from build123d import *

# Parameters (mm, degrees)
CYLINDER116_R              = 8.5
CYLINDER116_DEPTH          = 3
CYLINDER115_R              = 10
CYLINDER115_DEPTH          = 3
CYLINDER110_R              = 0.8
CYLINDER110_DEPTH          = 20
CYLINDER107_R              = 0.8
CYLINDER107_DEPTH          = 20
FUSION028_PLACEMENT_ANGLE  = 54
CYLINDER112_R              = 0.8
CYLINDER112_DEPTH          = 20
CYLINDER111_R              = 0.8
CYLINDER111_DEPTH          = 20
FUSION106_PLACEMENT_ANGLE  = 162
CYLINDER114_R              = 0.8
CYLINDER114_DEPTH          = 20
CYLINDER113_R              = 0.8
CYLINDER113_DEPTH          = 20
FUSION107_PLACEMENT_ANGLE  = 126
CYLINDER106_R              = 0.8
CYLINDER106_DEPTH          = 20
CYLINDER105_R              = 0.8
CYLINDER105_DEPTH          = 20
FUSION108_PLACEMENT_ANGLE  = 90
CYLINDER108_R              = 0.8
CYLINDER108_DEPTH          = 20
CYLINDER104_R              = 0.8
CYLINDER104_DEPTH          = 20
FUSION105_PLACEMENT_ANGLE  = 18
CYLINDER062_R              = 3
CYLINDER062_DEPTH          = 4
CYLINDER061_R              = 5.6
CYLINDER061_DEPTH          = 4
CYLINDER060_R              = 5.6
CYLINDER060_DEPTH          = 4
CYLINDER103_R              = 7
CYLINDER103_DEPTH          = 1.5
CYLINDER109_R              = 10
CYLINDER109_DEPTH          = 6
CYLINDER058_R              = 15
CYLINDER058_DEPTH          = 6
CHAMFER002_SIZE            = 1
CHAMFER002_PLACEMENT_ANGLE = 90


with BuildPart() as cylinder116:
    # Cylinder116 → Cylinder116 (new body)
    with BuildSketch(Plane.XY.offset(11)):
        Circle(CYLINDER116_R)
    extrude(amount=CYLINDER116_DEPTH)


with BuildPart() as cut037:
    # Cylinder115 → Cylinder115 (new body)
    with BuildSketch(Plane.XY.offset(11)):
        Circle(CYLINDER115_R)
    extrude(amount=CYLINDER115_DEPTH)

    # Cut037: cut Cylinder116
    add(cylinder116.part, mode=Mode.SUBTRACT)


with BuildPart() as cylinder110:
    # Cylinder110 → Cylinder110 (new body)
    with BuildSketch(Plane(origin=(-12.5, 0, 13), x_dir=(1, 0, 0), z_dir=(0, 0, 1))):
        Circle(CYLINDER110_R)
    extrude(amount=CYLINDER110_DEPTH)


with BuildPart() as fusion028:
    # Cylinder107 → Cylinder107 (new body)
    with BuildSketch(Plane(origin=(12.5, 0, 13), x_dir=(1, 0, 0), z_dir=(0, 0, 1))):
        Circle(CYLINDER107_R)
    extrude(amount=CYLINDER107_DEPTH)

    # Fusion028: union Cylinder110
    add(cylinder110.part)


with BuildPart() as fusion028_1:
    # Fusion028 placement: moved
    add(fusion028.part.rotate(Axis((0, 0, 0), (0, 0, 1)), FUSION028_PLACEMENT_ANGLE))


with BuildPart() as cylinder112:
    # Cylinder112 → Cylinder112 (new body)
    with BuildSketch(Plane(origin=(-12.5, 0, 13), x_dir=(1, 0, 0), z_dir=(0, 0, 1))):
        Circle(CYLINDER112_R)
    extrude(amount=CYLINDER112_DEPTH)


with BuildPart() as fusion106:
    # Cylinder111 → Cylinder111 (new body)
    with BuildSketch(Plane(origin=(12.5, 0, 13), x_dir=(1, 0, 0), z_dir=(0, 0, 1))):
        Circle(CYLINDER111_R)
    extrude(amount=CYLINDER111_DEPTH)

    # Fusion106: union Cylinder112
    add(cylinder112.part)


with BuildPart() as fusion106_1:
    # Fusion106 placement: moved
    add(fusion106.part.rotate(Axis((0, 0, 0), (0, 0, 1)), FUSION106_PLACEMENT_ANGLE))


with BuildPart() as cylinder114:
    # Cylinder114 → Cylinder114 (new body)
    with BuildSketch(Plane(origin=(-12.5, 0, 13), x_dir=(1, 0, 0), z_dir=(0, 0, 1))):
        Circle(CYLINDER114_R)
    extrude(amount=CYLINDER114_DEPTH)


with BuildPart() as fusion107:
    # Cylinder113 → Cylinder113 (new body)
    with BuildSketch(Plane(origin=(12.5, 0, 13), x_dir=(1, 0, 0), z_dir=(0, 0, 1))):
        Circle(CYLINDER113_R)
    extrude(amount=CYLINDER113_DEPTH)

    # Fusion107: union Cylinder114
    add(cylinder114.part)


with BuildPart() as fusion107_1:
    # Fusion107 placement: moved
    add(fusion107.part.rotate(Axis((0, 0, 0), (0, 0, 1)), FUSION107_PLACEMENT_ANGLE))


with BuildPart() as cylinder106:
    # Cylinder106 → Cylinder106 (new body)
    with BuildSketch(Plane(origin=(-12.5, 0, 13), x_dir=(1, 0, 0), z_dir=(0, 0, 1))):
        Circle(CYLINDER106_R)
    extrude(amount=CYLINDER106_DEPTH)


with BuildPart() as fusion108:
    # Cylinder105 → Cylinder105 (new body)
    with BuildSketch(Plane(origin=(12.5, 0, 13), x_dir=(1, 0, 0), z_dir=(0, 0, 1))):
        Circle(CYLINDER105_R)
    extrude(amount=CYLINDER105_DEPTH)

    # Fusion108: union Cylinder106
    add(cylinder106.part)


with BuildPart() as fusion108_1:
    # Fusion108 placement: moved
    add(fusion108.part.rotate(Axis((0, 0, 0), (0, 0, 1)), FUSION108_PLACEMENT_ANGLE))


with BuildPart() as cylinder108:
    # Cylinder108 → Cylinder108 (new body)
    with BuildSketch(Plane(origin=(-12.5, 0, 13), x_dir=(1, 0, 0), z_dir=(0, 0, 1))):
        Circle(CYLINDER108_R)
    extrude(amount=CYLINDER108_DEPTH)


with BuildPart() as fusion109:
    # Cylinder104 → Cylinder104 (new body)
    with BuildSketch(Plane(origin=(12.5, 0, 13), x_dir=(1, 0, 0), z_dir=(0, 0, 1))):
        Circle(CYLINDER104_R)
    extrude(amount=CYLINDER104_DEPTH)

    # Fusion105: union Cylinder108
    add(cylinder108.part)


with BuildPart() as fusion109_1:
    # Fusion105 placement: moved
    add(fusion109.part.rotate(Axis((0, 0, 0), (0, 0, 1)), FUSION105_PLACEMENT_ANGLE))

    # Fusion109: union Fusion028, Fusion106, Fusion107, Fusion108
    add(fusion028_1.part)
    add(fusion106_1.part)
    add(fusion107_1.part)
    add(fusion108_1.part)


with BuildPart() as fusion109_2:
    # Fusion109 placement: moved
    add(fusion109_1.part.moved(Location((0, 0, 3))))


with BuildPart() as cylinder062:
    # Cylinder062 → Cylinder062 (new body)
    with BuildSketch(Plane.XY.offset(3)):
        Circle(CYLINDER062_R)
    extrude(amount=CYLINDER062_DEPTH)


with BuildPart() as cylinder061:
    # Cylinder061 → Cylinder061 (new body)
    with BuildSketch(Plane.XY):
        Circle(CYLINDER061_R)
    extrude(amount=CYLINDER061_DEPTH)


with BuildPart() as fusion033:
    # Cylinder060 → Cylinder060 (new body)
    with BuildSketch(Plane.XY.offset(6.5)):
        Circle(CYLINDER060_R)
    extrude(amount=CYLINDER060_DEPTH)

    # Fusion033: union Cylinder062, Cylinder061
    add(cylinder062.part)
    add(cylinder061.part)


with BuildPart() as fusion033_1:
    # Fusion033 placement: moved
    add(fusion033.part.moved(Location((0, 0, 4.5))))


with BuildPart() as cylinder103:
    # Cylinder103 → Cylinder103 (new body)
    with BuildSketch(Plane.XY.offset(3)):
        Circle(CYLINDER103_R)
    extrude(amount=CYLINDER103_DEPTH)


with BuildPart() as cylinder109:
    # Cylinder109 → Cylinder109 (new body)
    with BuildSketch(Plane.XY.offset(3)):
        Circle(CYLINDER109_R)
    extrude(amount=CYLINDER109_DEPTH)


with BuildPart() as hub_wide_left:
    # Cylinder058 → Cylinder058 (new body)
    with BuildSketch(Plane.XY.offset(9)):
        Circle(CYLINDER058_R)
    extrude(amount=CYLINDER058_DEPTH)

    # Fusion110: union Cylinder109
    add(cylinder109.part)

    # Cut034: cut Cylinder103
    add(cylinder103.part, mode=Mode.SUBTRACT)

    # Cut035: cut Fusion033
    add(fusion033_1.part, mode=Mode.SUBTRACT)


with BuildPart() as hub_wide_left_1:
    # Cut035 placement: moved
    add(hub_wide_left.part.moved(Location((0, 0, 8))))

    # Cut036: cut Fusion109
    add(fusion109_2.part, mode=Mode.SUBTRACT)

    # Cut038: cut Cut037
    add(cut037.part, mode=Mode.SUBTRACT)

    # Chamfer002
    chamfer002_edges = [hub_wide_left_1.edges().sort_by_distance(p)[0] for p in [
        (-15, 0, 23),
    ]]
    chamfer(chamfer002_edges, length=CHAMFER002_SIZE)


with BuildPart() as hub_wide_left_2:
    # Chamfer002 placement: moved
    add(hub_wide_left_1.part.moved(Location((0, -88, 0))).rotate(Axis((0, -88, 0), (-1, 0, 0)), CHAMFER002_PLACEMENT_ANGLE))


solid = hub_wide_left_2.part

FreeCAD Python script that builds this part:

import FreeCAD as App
import Part
import Sketcher
from FreeCAD import Vector


def edges_at(feature, points):
    """Names of the edges that pass closest to the given points."""
    edges = feature.Shape.Edges
    near = lambda p: min(range(len(edges)), key=lambda i: edges[i].distToShape(Part.Vertex(*p))[0])
    return sorted({f"Edge{near(p) + 1}" for p in points})

doc = App.newDocument("Part")
body = doc.addObject("PartDesign::Body", "Body")

sketch1 = doc.addObject("Sketcher::SketchObject", "Sketch")
body.addObject(sketch1)
sketch1.AttachmentSupport = (doc.XY_Plane, [""])
sketch1.MapMode = "FlatFace"
sketch1.AttachmentOffset = App.Placement(Vector(0, 0, 11), App.Rotation())
sketch1.addGeometry(Part.Circle(Vector(0, 0, 0), Vector(0, 0, 1), 8.5), False)
sketch1.addConstraint([
    Sketcher.Constraint("Coincident", 0, 3, -1, 1),
    Sketcher.Constraint("Diameter", 0, 17.0),
])
pad1 = doc.addObject("PartDesign::Pad", "Pad")
body.addObject(pad1)
pad1.Profile = sketch1
pad1.Length = 3
body2 = doc.addObject("PartDesign::Body", "Body001")

sketch2 = doc.addObject("Sketcher::SketchObject", "Sketch001")
body2.addObject(sketch2)
sketch2.AttachmentSupport = (doc.getObject("XY_Plane001"), [""])
sketch2.MapMode = "FlatFace"
sketch2.AttachmentOffset = App.Placement(Vector(0, 0, 11), App.Rotation())
sketch2.addGeometry(Part.Circle(Vector(0, 0, 0), Vector(0, 0, 1), 10), False)
sketch2.addConstraint([
    Sketcher.Constraint("Coincident", 0, 3, -1, 1),
    Sketcher.Constraint("Diameter", 0, 20.0),
])
pad2 = doc.addObject("PartDesign::Pad", "Pad001")
body2.addObject(pad2)
pad2.Profile = sketch2
pad2.Length = 3
doc.recompute()

boolean = doc.addObject("PartDesign::Boolean", "Boolean")
body2.addObject(boolean)
boolean.Type = "Cut"
boolean.addObjects([body])
body3 = doc.addObject("PartDesign::Body", "Body002")

sketch3 = doc.addObject("Sketcher::SketchObject", "Sketch002")
body3.addObject(sketch3)
sketch3.AttachmentSupport = (doc.getObject("XY_Plane002"), [""])
sketch3.MapMode = "FlatFace"
sketch3.AttachmentOffset = App.Placement(Vector(0, 0, 13), App.Rotation())
sketch3.addGeometry(Part.Circle(Vector(-12.5, 0, 0), Vector(0, 0, 1), 0.8), False)
sketch3.addConstraint([
    Sketcher.Constraint("PointOnObject", 0, 3, -1),
    Sketcher.Constraint("Diameter", 0, 1.6),
    Sketcher.Constraint("DistanceX", 0, 3, -1, 1, 12.5),
])
pad3 = doc.addObject("PartDesign::Pad", "Pad002")
body3.addObject(pad3)
pad3.Profile = sketch3
pad3.Length = 20
body4 = doc.addObject("PartDesign::Body", "Body003")
body4.AllowCompound = True

sketch4 = doc.addObject("Sketcher::SketchObject", "Sketch003")
body4.addObject(sketch4)
sketch4.AttachmentSupport = (doc.getObject("XY_Plane003"), [""])
sketch4.MapMode = "FlatFace"
sketch4.AttachmentOffset = App.Placement(Vector(0, 0, 13), App.Rotation())
sketch4.addGeometry(Part.Circle(Vector(12.5, 0, 0), Vector(0, 0, 1), 0.8), False)
sketch4.addConstraint([
    Sketcher.Constraint("PointOnObject", 0, 3, -1),
    Sketcher.Constraint("Diameter", 0, 1.6),
    Sketcher.Constraint("DistanceX", -1, 1, 0, 3, 12.5),
])
pad4 = doc.addObject("PartDesign::Pad", "Pad003")
body4.addObject(pad4)
pad4.Profile = sketch4
pad4.Length = 20
doc.recompute()

boolean2 = doc.addObject("PartDesign::Boolean", "Boolean001")
body4.addObject(boolean2)
boolean2.Type = "Fuse"
boolean2.addObjects([body3])
body5 = doc.addObject("PartDesign::Body", "Body004")
body5.AllowCompound = True
doc.recompute()

body4.Placement = App.Placement(Vector(0, 0, 0), App.Rotation(Vector(0, 0, 1), 54))
boolean3 = doc.addObject("PartDesign::Boolean", "Boolean002")
body5.addObject(boolean3)
boolean3.Type = "Fuse"
boolean3.addObjects([body4])
body6 = doc.addObject("PartDesign::Body", "Body005")

sketch5 = doc.addObject("Sketcher::SketchObject", "Sketch004")
body6.addObject(sketch5)
sketch5.AttachmentSupport = (doc.getObject("XY_Plane005"), [""])
sketch5.MapMode = "FlatFace"
sketch5.AttachmentOffset = App.Placement(Vector(0, 0, 13), App.Rotation())
sketch5.addGeometry(Part.Circle(Vector(-12.5, 0, 0), Vector(0, 0, 1), 0.8), False)
sketch5.addConstraint([
    Sketcher.Constraint("PointOnObject", 0, 3, -1),
    Sketcher.Constraint("Diameter", 0, 1.6),
    Sketcher.Constraint("DistanceX", 0, 3, -1, 1, 12.5),
])
pad5 = doc.addObject("PartDesign::Pad", "Pad004")
body6.addObject(pad5)
pad5.Profile = sketch5
pad5.Length = 20
body7 = doc.addObject("PartDesign::Body", "Body006")
body7.AllowCompound = True

sketch6 = doc.addObject("Sketcher::SketchObject", "Sketch005")
body7.addObject(sketch6)
sketch6.AttachmentSupport = (doc.getObject("XY_Plane006"), [""])
sketch6.MapMode = "FlatFace"
sketch6.AttachmentOffset = App.Placement(Vector(0, 0, 13), App.Rotation())
sketch6.addGeometry(Part.Circle(Vector(12.5, 0, 0), Vector(0, 0, 1), 0.8), False)
sketch6.addConstraint([
    Sketcher.Constraint("PointOnObject", 0, 3, -1),
    Sketcher.Constraint("Diameter", 0, 1.6),
    Sketcher.Constraint("DistanceX", -1, 1, 0, 3, 12.5),
])
pad6 = doc.addObject("PartDesign::Pad", "Pad005")
body7.addObject(pad6)
pad6.Profile = sketch6
pad6.Length = 20
doc.recompute()

boolean4 = doc.addObject("PartDesign::Boolean", "Boolean003")
body7.addObject(boolean4)
boolean4.Type = "Fuse"
boolean4.addObjects([body6])
body8 = doc.addObject("PartDesign::Body", "Body007")
body8.AllowCompound = True
doc.recompute()

body7.Placement = App.Placement(Vector(0, 0, 0), App.Rotation(Vector(0, 0, 1), 162))
boolean5 = doc.addObject("PartDesign::Boolean", "Boolean004")
body8.addObject(boolean5)
boolean5.Type = "Fuse"
boolean5.addObjects([body7])
body9 = doc.addObject("PartDesign::Body", "Body008")

sketch7 = doc.addObject("Sketcher::SketchObject", "Sketch006")
body9.addObject(sketch7)
sketch7.AttachmentSupport = (doc.getObject("XY_Plane008"), [""])
sketch7.MapMode = "FlatFace"
sketch7.AttachmentOffset = App.Placement(Vector(0, 0, 13), App.Rotation())
sketch7.addGeometry(Part.Circle(Vector(-12.5, 0, 0), Vector(0, 0, 1), 0.8), False)
sketch7.addConstraint([
    Sketcher.Constraint("PointOnObject", 0, 3, -1),
    Sketcher.Constraint("Diameter", 0, 1.6),
    Sketcher.Constraint("DistanceX", 0, 3, -1, 1, 12.5),
])
pad7 = doc.addObject("PartDesign::Pad", "Pad006")
body9.addObject(pad7)
pad7.Profile = sketch7
pad7.Length = 20
body10 = doc.addObject("PartDesign::Body", "Body009")
body10.AllowCompound = True

sketch8 = doc.addObject("Sketcher::SketchObject", "Sketch007")
body10.addObject(sketch8)
sketch8.AttachmentSupport = (doc.getObject("XY_Plane009"), [""])
sketch8.MapMode = "FlatFace"
sketch8.AttachmentOffset = App.Placement(Vector(0, 0, 13), App.Rotation())
sketch8.addGeometry(Part.Circle(Vector(12.5, 0, 0), Vector(0, 0, 1), 0.8), False)
sketch8.addConstraint([
    Sketcher.Constraint("PointOnObject", 0, 3, -1),
    Sketcher.Constraint("Diameter", 0, 1.6),
    Sketcher.Constraint("DistanceX", -1, 1, 0, 3, 12.5),
])
pad8 = doc.addObject("PartDesign::Pad", "Pad007")
body10.addObject(pad8)
pad8.Profile = sketch8
pad8.Length = 20
doc.recompute()

boolean6 = doc.addObject("PartDesign::Boolean", "Boolean005")
body10.addObject(boolean6)
boolean6.Type = "Fuse"
boolean6.addObjects([body9])
body11 = doc.addObject("PartDesign::Body", "Body010")
body11.AllowCompound = True
doc.recompute()

body10.Placement = App.Placement(Vector(0, 0, 0), App.Rotation(Vector(0, 0, 1), 126))
boolean7 = doc.addObject("PartDesign::Boolean", "Boolean006")
body11.addObject(boolean7)
boolean7.Type = "Fuse"
boolean7.addObjects([body10])
body12 = doc.addObject("PartDesign::Body", "Body011")

sketch9 = doc.addObject("Sketcher::SketchObject", "Sketch008")
body12.addObject(sketch9)
sketch9.AttachmentSupport = (doc.getObject("XY_Plane011"), [""])
sketch9.MapMode = "FlatFace"
sketch9.AttachmentOffset = App.Placement(Vector(0, 0, 13), App.Rotation())
sketch9.addGeometry(Part.Circle(Vector(-12.5, 0, 0), Vector(0, 0, 1), 0.8), False)
sketch9.addConstraint([
    Sketcher.Constraint("PointOnObject", 0, 3, -1),
    Sketcher.Constraint("Diameter", 0, 1.6),
    Sketcher.Constraint("DistanceX", 0, 3, -1, 1, 12.5),
])
pad9 = doc.addObject("PartDesign::Pad", "Pad008")
body12.addObject(pad9)
pad9.Profile = sketch9
pad9.Length = 20
body13 = doc.addObject("PartDesign::Body", "Body012")
body13.AllowCompound = True

sketch10 = doc.addObject("Sketcher::SketchObject", "Sketch009")
body13.addObject(sketch10)
sketch10.AttachmentSupport = (doc.getObject("XY_Plane012"), [""])
sketch10.MapMode = "FlatFace"
sketch10.AttachmentOffset = App.Placement(Vector(0, 0, 13), App.Rotation())
sketch10.addGeometry(Part.Circle(Vector(12.5, 0, 0), Vector(0, 0, 1), 0.8), False)
sketch10.addConstraint([
    Sketcher.Constraint("PointOnObject", 0, 3, -1),
    Sketcher.Constraint("Diameter", 0, 1.6),
    Sketcher.Constraint("DistanceX", -1, 1, 0, 3, 12.5),
])
pad10 = doc.addObject("PartDesign::Pad", "Pad009")
body13.addObject(pad10)
pad10.Profile = sketch10
pad10.Length = 20
doc.recompute()

boolean8 = doc.addObject("PartDesign::Boolean", "Boolean007")
body13.addObject(boolean8)
boolean8.Type = "Fuse"
boolean8.addObjects([body12])
body14 = doc.addObject("PartDesign::Body", "Body013")
body14.AllowCompound = True
doc.recompute()

body13.Placement = App.Placement(Vector(0, 0, 0), App.Rotation(Vector(0, 0, 1), 90))
boolean9 = doc.addObject("PartDesign::Boolean", "Boolean008")
body14.addObject(boolean9)
boolean9.Type = "Fuse"
boolean9.addObjects([body13])
body15 = doc.addObject("PartDesign::Body", "Body014")

sketch11 = doc.addObject("Sketcher::SketchObject", "Sketch010")
body15.addObject(sketch11)
sketch11.AttachmentSupport = (doc.getObject("XY_Plane014"), [""])
sketch11.MapMode = "FlatFace"
sketch11.AttachmentOffset = App.Placement(Vector(0, 0, 13), App.Rotation())
sketch11.addGeometry(Part.Circle(Vector(-12.5, 0, 0), Vector(0, 0, 1), 0.8), False)
sketch11.addConstraint([
    Sketcher.Constraint("PointOnObject", 0, 3, -1),
    Sketcher.Constraint("Diameter", 0, 1.6),
    Sketcher.Constraint("DistanceX", 0, 3, -1, 1, 12.5),
])
pad11 = doc.addObject("PartDesign::Pad", "Pad010")
body15.addObject(pad11)
pad11.Profile = sketch11
pad11.Length = 20
body16 = doc.addObject("PartDesign::Body", "Body015")
body16.AllowCompound = True

sketch12 = doc.addObject("Sketcher::SketchObject", "Sketch011")
body16.addObject(sketch12)
sketch12.AttachmentSupport = (doc.getObject("XY_Plane015"), [""])
sketch12.MapMode = "FlatFace"
sketch12.AttachmentOffset = App.Placement(Vector(0, 0, 13), App.Rotation())
sketch12.addGeometry(Part.Circle(Vector(12.5, 0, 0), Vector(0, 0, 1), 0.8), False)
sketch12.addConstraint([
    Sketcher.Constraint("PointOnObject", 0, 3, -1),
    Sketcher.Constraint("Diameter", 0, 1.6),
    Sketcher.Constraint("DistanceX", -1, 1, 0, 3, 12.5),
])
pad12 = doc.addObject("PartDesign::Pad", "Pad011")
body16.addObject(pad12)
pad12.Profile = sketch12
pad12.Length = 20
doc.recompute()

boolean10 = doc.addObject("PartDesign::Boolean", "Boolean009")
body16.addObject(boolean10)
boolean10.Type = "Fuse"
boolean10.addObjects([body15])
body17 = doc.addObject("PartDesign::Body", "Body016")
body17.AllowCompound = True
doc.recompute()

body16.Placement = App.Placement(Vector(0, 0, 0), App.Rotation(Vector(0, 0, 1), 18))
boolean11 = doc.addObject("PartDesign::Boolean", "Boolean010")
body17.addObject(boolean11)
boolean11.Type = "Fuse"
boolean11.addObjects([body16])
doc.recompute()

boolean12 = doc.addObject("PartDesign::Boolean", "Boolean011")
body17.addObject(boolean12)
boolean12.Type = "Fuse"
boolean12.addObjects([body5])
doc.recompute()

boolean13 = doc.addObject("PartDesign::Boolean", "Boolean012")
body17.addObject(boolean13)
boolean13.Type = "Fuse"
boolean13.addObjects([body8])
doc.recompute()

boolean14 = doc.addObject("PartDesign::Boolean", "Boolean013")
body17.addObject(boolean14)
boolean14.Type = "Fuse"
boolean14.addObjects([body11])
doc.recompute()

boolean15 = doc.addObject("PartDesign::Boolean", "Boolean014")
body17.addObject(boolean15)
boolean15.Type = "Fuse"
boolean15.addObjects([body14])
body18 = doc.addObject("PartDesign::Body", "Body017")
body18.AllowCompound = True
doc.recompute()

body17.Placement = App.Placement(Vector(0, 0, 3), App.Rotation(Vector(0, 0, 1), 0))
boolean16 = doc.addObject("PartDesign::Boolean", "Boolean015")
body18.addObject(boolean16)
boolean16.Type = "Fuse"
boolean16.addObjects([body17])
body19 = doc.addObject("PartDesign::Body", "Body018")

sketch13 = doc.addObject("Sketcher::SketchObject", "Sketch012")
body19.addObject(sketch13)
sketch13.AttachmentSupport = (doc.getObject("XY_Plane018"), [""])
sketch13.MapMode = "FlatFace"
sketch13.AttachmentOffset = App.Placement(Vector(0, 0, 3), App.Rotation())
sketch13.addGeometry(Part.Circle(Vector(0, 0, 0), Vector(0, 0, 1), 3), False)
sketch13.addConstraint([
    Sketcher.Constraint("Coincident", 0, 3, -1, 1),
    Sketcher.Constraint("Diameter", 0, 6.0),
])
pad13 = doc.addObject("PartDesign::Pad", "Pad012")
body19.addObject(pad13)
pad13.Profile = sketch13
pad13.Length = 4
body20 = doc.addObject("PartDesign::Body", "Body019")

sketch14 = doc.addObject("Sketcher::SketchObject", "Sketch013")
body20.addObject(sketch14)
sketch14.AttachmentSupport = (doc.getObject("XY_Plane019"), [""])
sketch14.MapMode = "FlatFace"
sketch14.addGeometry(Part.Circle(Vector(0, 0, 0), Vector(0, 0, 1), 5.6), False)
sketch14.addConstraint([
    Sketcher.Constraint("Coincident", 0, 3, -1, 1),
    Sketcher.Constraint("Diameter", 0, 11.2),
])
pad14 = doc.addObject("PartDesign::Pad", "Pad013")
body20.addObject(pad14)
pad14.Profile = sketch14
pad14.Length = 4
body21 = doc.addObject("PartDesign::Body", "Body020")

sketch15 = doc.addObject("Sketcher::SketchObject", "Sketch014")
body21.addObject(sketch15)
sketch15.AttachmentSupport = (doc.getObject("XY_Plane020"), [""])
sketch15.MapMode = "FlatFace"
sketch15.AttachmentOffset = App.Placement(Vector(0, 0, 6.5), App.Rotation())
sketch15.addGeometry(Part.Circle(Vector(0, 0, 0), Vector(0, 0, 1), 5.6), False)
sketch15.addConstraint([
    Sketcher.Constraint("Coincident", 0, 3, -1, 1),
    Sketcher.Constraint("Diameter", 0, 11.2),
])
pad15 = doc.addObject("PartDesign::Pad", "Pad014")
body21.addObject(pad15)
pad15.Profile = sketch15
pad15.Length = 4
doc.recompute()

boolean17 = doc.addObject("PartDesign::Boolean", "Boolean016")
body21.addObject(boolean17)
boolean17.Type = "Fuse"
boolean17.addObjects([body19])
doc.recompute()

boolean18 = doc.addObject("PartDesign::Boolean", "Boolean017")
body21.addObject(boolean18)
boolean18.Type = "Fuse"
boolean18.addObjects([body20])
body22 = doc.addObject("PartDesign::Body", "Body021")
doc.recompute()

body21.Placement = App.Placement(Vector(0, 0, 4.5), App.Rotation(Vector(0, 0, 1), 0))
boolean19 = doc.addObject("PartDesign::Boolean", "Boolean018")
body22.addObject(boolean19)
boolean19.Type = "Fuse"
boolean19.addObjects([body21])
body23 = doc.addObject("PartDesign::Body", "Body022")

sketch16 = doc.addObject("Sketcher::SketchObject", "Sketch015")
body23.addObject(sketch16)
sketch16.AttachmentSupport = (doc.getObject("XY_Plane022"), [""])
sketch16.MapMode = "FlatFace"
sketch16.AttachmentOffset = App.Placement(Vector(0, 0, 3), App.Rotation())
sketch16.addGeometry(Part.Circle(Vector(0, 0, 0), Vector(0, 0, 1), 7), False)
sketch16.addConstraint([
    Sketcher.Constraint("Coincident", 0, 3, -1, 1),
    Sketcher.Constraint("Diameter", 0, 14.0),
])
pad16 = doc.addObject("PartDesign::Pad", "Pad015")
body23.addObject(pad16)
pad16.Profile = sketch16
pad16.Length = 1.5
body24 = doc.addObject("PartDesign::Body", "Body023")

sketch17 = doc.addObject("Sketcher::SketchObject", "Sketch016")
body24.addObject(sketch17)
sketch17.AttachmentSupport = (doc.getObject("XY_Plane023"), [""])
sketch17.MapMode = "FlatFace"
sketch17.AttachmentOffset = App.Placement(Vector(0, 0, 3), App.Rotation())
sketch17.addGeometry(Part.Circle(Vector(0, 0, 0), Vector(0, 0, 1), 10), False)
sketch17.addConstraint([
    Sketcher.Constraint("Coincident", 0, 3, -1, 1),
    Sketcher.Constraint("Diameter", 0, 20.0),
])
pad17 = doc.addObject("PartDesign::Pad", "Pad016")
body24.addObject(pad17)
pad17.Profile = sketch17
pad17.Length = 6
body25 = doc.addObject("PartDesign::Body", "Body024")

sketch18 = doc.addObject("Sketcher::SketchObject", "Sketch017")
body25.addObject(sketch18)
sketch18.AttachmentSupport = (doc.getObject("XY_Plane024"), [""])
sketch18.MapMode = "FlatFace"
sketch18.AttachmentOffset = App.Placement(Vector(0, 0, 9), App.Rotation())
sketch18.addGeometry(Part.Circle(Vector(0, 0, 0), Vector(0, 0, 1), 15), False)
sketch18.addConstraint([
    Sketcher.Constraint("Coincident", 0, 3, -1, 1),
    Sketcher.Constraint("Diameter", 0, 30.0),
])
pad18 = doc.addObject("PartDesign::Pad", "Pad017")
body25.addObject(pad18)
pad18.Profile = sketch18
pad18.Length = 6
doc.recompute()

boolean20 = doc.addObject("PartDesign::Boolean", "Boolean019")
body25.addObject(boolean20)
boolean20.Type = "Fuse"
boolean20.addObjects([body24])
doc.recompute()

boolean21 = doc.addObject("PartDesign::Boolean", "Boolean020")
body25.addObject(boolean21)
boolean21.Type = "Cut"
boolean21.addObjects([body23])
doc.recompute()

boolean22 = doc.addObject("PartDesign::Boolean", "Boolean021")
body25.addObject(boolean22)
boolean22.Type = "Cut"
boolean22.addObjects([body22])
body26 = doc.addObject("PartDesign::Body", "Body025")
doc.recompute()

body25.Placement = App.Placement(Vector(0, 0, 8), App.Rotation(Vector(0, 0, 1), 0))
boolean23 = doc.addObject("PartDesign::Boolean", "Boolean022")
body26.addObject(boolean23)
boolean23.Type = "Fuse"
boolean23.addObjects([body25])
doc.recompute()

boolean24 = doc.addObject("PartDesign::Boolean", "Boolean023")
body26.addObject(boolean24)
boolean24.Type = "Cut"
boolean24.addObjects([body18])
doc.recompute()

boolean25 = doc.addObject("PartDesign::Boolean", "Boolean024")
body26.addObject(boolean25)
boolean25.Type = "Cut"
boolean25.addObjects([body2])
doc.recompute()

chamfer = doc.addObject("PartDesign::Chamfer", "Chamfer")
body26.addObject(chamfer)
chamfer.Base = (boolean25, edges_at(boolean25, [(-15, 0, 23)]))
chamfer.Size = 1
body27 = doc.addObject("PartDesign::Body", "Body026")
doc.recompute()

body26.Placement = App.Placement(Vector(0, -88, 0), App.Rotation(Vector(-1, 0, 0), 90))
boolean26 = doc.addObject("PartDesign::Boolean", "Boolean025")
body27.addObject(boolean26)
boolean26.Type = "Fuse"
boolean26.addObjects([body26])

doc.recompute()
